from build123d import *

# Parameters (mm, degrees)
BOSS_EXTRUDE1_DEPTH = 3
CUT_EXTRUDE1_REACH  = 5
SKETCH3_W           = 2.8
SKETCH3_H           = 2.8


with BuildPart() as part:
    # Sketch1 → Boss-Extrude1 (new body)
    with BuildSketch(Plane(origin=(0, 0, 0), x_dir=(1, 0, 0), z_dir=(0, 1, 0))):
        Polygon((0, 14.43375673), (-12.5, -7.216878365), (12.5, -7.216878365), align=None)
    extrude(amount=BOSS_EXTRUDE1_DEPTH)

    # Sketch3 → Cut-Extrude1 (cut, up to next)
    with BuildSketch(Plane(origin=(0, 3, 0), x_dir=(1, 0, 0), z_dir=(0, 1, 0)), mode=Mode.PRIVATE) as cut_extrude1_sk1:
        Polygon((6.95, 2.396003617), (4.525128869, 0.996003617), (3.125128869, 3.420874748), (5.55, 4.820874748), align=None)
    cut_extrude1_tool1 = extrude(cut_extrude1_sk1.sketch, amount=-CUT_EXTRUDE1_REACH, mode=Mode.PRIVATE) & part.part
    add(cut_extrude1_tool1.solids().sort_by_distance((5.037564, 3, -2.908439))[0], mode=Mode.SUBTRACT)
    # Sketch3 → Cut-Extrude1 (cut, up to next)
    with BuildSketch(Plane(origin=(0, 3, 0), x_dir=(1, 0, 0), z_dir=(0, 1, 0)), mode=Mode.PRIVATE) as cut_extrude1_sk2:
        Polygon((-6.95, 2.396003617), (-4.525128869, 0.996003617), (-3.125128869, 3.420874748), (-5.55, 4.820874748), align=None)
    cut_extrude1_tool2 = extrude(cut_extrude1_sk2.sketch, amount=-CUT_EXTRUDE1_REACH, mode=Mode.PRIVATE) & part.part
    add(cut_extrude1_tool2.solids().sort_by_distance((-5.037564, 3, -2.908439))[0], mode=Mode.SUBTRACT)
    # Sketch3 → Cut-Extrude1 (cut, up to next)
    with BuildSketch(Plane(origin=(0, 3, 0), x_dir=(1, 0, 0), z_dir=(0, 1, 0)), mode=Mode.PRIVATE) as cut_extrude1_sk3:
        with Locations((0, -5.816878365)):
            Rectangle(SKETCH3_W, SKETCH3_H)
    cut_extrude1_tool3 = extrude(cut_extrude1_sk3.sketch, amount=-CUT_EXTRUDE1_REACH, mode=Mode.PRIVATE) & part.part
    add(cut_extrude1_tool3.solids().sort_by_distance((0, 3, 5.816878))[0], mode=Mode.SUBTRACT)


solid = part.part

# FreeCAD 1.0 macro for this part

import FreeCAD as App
import Part
import Sketcher

V = App.Vector
Q = App.Units.Quantity


def add_polygon(sketch, points):
    """Adds a closed chain of lines whose ends are joined by coincident constraints."""
    first, n = sketch.GeometryCount, len(points)
    for a, b in zip(points, points[1:] + points[:1]):
        sketch.addGeometry(Part.LineSegment(App.Vector(*a, 0), App.Vector(*b, 0)), False)
    for i in range(n):
        sketch.addConstraint(Sketcher.Constraint("Coincident", first + i, 2, first + (i + 1) % n, 1))

doc = App.newDocument("Part")
body = doc.addObject("PartDesign::Body", "Body")

sketch1 = body.newObject("Sketcher::SketchObject", "Sketch")
sketch1.AttachmentSupport = (doc.getObject("XZ_Plane"), [""])
sketch1.MapMode = "FlatFace"
add_polygon(sketch1, [(0, -14), (-12, 7), (12, 7)])
sketch1.addConstraint([
    Sketcher.Constraint("Horizontal", 1),
    Sketcher.Constraint("PointOnObject", 2, 2, -2),
    Sketcher.Constraint("Equal", 0, 2),
    Sketcher.Constraint("DistanceX", 1, 1, 1, 2, 25.0),
    Sketcher.Constraint("Angle", 0, Q("120 deg")),
    Sketcher.Constraint("DistanceY", -1, 1, 0, 2, 7.216878),
])
pad1 = body.newObject("PartDesign::Pad", "Pad")
pad1.Profile = sketch1
pad1.Length = 3
pad1.Reversed = True

sketch2 = body.newObject("Sketcher::SketchObject", "Sketch001")
sketch2.AttachmentSupport = (doc.getObject("XZ_Plane"), [""])
sketch2.MapMode = "FlatFace"
sketch2.AttachmentOffset = App.Placement(V(0, 0, -3), App.Rotation())
add_polygon(sketch2, [(4.5, -1), (7, -2.4), (5.5, -4.8), (3.1, -3.4)])
sketch2.addConstraint([
    Sketcher.Constraint("Perpendicular", 0, 1),
    Sketcher.Constraint("Perpendicular", 1, 2),
    Sketcher.Constraint("Perpendicular", 2, 3),
    Sketcher.Constraint("Equal", 0, 1),
    Sketcher.Constraint("Angle", 0, Q("-30 deg")),
    Sketcher.Constraint("Distance", 0, 2.8),
    Sketcher.Constraint("DistanceX", -1, 1, 0, 2, 6.95),
    Sketcher.Constraint("DistanceY", 0, 2, -1, 1, 2.396004),
])
pocket1 = body.newObject("PartDesign::Pocket", "Pocket")
pocket1.Profile = sketch2
pocket1.Type = "UpToFirst"
pocket1.Reversed = True

sketch3 = body.newObject("Sketcher::SketchObject", "Sketch002")
sketch3.AttachmentSupport = (doc.getObject("XZ_Plane"), [""])
sketch3.MapMode = "FlatFace"
sketch3.AttachmentOffset = App.Placement(V(0, 0, -3), App.Rotation())
add_polygon(sketch3, [(-7, -2.4), (-4.5, -1), (-3.1, -3.4), (-5.5, -4.8)])
sketch3.addConstraint([
    Sketcher.Constraint("Perpendicular", 0, 1),
    Sketcher.Constraint("Perpendicular", 1, 2),
    Sketcher.Constraint("Perpendicular", 2, 3),
    Sketcher.Constraint("Equal", 0, 1),
    Sketcher.Constraint("Angle", 0, Q("30 deg")),
    Sketcher.Constraint("Distance", 0, 2.8),
    Sketcher.Constraint("DistanceX", 2, 2, -1, 1, 5.55),
    Sketcher.Constraint("DistanceY", 0, 2, -1, 1, 0.996004),
])
pocket2 = body.newObject("PartDesign::Pocket", "Pocket001")
pocket2.Profile = sketch3
pocket2.Type = "UpToFirst"
pocket2.Reversed = True

sketch4 = body.newObject("Sketcher::SketchObject", "Sketch003")
sketch4.AttachmentSupport = (doc.getObject("XZ_Plane"), [""])
sketch4.MapMode = "FlatFace"
sketch4.AttachmentOffset = App.Placement(V(0, 0, -3), App.Rotation())
add_polygon(sketch4, [(-1.4, 4.4), (-1.4, 7.2), (1.4, 7.2), (1.4, 4.4)])
sketch4.addConstraint([
    Sketcher.Constraint("Vertical", 0),
    Sketcher.Constraint("Horizontal", 1),
    Sketcher.Constraint("Vertical", 2),
    Sketcher.Constraint("Horizontal", 3),
    Sketcher.Constraint("Equal", 3, 0),
    Sketcher.Constraint("DistanceX", 1, 1, 1, 2, 2.8),
    Sketcher.Constraint("DistanceX", 0, 2, -1, 1, 1.4),
    Sketcher.Constraint("DistanceY", -1, 1, 0, 2, 7.216878),
])
pocket3 = body.newObject("PartDesign::Pocket", "Pocket002")
pocket3.Profile = sketch4
pocket3.Type = "UpToFirst"
pocket3.Reversed = True

doc.recompute()
